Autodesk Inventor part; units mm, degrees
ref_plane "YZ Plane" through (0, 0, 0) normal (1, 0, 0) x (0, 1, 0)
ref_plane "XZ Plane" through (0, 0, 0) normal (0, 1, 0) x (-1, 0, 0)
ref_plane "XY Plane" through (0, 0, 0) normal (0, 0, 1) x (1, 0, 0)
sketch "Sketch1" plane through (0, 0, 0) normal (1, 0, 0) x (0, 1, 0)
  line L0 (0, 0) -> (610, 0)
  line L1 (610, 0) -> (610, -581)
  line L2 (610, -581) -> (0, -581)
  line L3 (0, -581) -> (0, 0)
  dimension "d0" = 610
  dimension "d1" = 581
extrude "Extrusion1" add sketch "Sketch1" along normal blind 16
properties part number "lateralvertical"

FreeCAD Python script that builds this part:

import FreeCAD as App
import Part
import Sketcher
Q = App.Units.Quantity

doc = App.newDocument("Part")
body = doc.addObject("PartDesign::Body", "Body")

sketch1 = body.newObject("Sketcher::SketchObject", "Sketch")
sketch1.AttachmentSupport = (doc.getObject("YZ_Plane"), [""])
sketch1.MapMode = "FlatFace"
sketch1.addGeometry([
    Part.LineSegment(App.Vector(610, 0, 0), App.Vector(0, 0, 0)),
    Part.LineSegment(App.Vector(0, 0, 0), App.Vector(0, -581, 0)),
    Part.LineSegment(App.Vector(0, -581, 0), App.Vector(610, -581, 0)),
    Part.LineSegment(App.Vector(610, -581, 0), App.Vector(610, 0, 0)),
], False)
sketch1.addConstraint([
    Sketcher.Constraint("Coincident", 0, 2, 1, 1),
    Sketcher.Constraint("Coincident", 1, 2, 2, 1),
    Sketcher.Constraint("Coincident", 2, 2, 3, 1),
    Sketcher.Constraint("Coincident", 3, 2, 0, 1),
    Sketcher.Constraint("Horizontal", 0),
    Sketcher.Constraint("Vertical", 1),
    Sketcher.Constraint("Horizontal", 2),
    Sketcher.Constraint("Vertical", 3),
    Sketcher.Constraint("Coincident", 0, 2, -1, 1),
    Sketcher.Constraint("DistanceX", 0, 2, 0, 1, Q("610 mm")),
    Sketcher.Constraint("DistanceY", 1, 2, 1, 1, Q("581 mm")),
])
pad1 = body.newObject("PartDesign::Pad", "Pad")
pad1.Profile = sketch1
pad1.Length = 16

doc.recompute()
